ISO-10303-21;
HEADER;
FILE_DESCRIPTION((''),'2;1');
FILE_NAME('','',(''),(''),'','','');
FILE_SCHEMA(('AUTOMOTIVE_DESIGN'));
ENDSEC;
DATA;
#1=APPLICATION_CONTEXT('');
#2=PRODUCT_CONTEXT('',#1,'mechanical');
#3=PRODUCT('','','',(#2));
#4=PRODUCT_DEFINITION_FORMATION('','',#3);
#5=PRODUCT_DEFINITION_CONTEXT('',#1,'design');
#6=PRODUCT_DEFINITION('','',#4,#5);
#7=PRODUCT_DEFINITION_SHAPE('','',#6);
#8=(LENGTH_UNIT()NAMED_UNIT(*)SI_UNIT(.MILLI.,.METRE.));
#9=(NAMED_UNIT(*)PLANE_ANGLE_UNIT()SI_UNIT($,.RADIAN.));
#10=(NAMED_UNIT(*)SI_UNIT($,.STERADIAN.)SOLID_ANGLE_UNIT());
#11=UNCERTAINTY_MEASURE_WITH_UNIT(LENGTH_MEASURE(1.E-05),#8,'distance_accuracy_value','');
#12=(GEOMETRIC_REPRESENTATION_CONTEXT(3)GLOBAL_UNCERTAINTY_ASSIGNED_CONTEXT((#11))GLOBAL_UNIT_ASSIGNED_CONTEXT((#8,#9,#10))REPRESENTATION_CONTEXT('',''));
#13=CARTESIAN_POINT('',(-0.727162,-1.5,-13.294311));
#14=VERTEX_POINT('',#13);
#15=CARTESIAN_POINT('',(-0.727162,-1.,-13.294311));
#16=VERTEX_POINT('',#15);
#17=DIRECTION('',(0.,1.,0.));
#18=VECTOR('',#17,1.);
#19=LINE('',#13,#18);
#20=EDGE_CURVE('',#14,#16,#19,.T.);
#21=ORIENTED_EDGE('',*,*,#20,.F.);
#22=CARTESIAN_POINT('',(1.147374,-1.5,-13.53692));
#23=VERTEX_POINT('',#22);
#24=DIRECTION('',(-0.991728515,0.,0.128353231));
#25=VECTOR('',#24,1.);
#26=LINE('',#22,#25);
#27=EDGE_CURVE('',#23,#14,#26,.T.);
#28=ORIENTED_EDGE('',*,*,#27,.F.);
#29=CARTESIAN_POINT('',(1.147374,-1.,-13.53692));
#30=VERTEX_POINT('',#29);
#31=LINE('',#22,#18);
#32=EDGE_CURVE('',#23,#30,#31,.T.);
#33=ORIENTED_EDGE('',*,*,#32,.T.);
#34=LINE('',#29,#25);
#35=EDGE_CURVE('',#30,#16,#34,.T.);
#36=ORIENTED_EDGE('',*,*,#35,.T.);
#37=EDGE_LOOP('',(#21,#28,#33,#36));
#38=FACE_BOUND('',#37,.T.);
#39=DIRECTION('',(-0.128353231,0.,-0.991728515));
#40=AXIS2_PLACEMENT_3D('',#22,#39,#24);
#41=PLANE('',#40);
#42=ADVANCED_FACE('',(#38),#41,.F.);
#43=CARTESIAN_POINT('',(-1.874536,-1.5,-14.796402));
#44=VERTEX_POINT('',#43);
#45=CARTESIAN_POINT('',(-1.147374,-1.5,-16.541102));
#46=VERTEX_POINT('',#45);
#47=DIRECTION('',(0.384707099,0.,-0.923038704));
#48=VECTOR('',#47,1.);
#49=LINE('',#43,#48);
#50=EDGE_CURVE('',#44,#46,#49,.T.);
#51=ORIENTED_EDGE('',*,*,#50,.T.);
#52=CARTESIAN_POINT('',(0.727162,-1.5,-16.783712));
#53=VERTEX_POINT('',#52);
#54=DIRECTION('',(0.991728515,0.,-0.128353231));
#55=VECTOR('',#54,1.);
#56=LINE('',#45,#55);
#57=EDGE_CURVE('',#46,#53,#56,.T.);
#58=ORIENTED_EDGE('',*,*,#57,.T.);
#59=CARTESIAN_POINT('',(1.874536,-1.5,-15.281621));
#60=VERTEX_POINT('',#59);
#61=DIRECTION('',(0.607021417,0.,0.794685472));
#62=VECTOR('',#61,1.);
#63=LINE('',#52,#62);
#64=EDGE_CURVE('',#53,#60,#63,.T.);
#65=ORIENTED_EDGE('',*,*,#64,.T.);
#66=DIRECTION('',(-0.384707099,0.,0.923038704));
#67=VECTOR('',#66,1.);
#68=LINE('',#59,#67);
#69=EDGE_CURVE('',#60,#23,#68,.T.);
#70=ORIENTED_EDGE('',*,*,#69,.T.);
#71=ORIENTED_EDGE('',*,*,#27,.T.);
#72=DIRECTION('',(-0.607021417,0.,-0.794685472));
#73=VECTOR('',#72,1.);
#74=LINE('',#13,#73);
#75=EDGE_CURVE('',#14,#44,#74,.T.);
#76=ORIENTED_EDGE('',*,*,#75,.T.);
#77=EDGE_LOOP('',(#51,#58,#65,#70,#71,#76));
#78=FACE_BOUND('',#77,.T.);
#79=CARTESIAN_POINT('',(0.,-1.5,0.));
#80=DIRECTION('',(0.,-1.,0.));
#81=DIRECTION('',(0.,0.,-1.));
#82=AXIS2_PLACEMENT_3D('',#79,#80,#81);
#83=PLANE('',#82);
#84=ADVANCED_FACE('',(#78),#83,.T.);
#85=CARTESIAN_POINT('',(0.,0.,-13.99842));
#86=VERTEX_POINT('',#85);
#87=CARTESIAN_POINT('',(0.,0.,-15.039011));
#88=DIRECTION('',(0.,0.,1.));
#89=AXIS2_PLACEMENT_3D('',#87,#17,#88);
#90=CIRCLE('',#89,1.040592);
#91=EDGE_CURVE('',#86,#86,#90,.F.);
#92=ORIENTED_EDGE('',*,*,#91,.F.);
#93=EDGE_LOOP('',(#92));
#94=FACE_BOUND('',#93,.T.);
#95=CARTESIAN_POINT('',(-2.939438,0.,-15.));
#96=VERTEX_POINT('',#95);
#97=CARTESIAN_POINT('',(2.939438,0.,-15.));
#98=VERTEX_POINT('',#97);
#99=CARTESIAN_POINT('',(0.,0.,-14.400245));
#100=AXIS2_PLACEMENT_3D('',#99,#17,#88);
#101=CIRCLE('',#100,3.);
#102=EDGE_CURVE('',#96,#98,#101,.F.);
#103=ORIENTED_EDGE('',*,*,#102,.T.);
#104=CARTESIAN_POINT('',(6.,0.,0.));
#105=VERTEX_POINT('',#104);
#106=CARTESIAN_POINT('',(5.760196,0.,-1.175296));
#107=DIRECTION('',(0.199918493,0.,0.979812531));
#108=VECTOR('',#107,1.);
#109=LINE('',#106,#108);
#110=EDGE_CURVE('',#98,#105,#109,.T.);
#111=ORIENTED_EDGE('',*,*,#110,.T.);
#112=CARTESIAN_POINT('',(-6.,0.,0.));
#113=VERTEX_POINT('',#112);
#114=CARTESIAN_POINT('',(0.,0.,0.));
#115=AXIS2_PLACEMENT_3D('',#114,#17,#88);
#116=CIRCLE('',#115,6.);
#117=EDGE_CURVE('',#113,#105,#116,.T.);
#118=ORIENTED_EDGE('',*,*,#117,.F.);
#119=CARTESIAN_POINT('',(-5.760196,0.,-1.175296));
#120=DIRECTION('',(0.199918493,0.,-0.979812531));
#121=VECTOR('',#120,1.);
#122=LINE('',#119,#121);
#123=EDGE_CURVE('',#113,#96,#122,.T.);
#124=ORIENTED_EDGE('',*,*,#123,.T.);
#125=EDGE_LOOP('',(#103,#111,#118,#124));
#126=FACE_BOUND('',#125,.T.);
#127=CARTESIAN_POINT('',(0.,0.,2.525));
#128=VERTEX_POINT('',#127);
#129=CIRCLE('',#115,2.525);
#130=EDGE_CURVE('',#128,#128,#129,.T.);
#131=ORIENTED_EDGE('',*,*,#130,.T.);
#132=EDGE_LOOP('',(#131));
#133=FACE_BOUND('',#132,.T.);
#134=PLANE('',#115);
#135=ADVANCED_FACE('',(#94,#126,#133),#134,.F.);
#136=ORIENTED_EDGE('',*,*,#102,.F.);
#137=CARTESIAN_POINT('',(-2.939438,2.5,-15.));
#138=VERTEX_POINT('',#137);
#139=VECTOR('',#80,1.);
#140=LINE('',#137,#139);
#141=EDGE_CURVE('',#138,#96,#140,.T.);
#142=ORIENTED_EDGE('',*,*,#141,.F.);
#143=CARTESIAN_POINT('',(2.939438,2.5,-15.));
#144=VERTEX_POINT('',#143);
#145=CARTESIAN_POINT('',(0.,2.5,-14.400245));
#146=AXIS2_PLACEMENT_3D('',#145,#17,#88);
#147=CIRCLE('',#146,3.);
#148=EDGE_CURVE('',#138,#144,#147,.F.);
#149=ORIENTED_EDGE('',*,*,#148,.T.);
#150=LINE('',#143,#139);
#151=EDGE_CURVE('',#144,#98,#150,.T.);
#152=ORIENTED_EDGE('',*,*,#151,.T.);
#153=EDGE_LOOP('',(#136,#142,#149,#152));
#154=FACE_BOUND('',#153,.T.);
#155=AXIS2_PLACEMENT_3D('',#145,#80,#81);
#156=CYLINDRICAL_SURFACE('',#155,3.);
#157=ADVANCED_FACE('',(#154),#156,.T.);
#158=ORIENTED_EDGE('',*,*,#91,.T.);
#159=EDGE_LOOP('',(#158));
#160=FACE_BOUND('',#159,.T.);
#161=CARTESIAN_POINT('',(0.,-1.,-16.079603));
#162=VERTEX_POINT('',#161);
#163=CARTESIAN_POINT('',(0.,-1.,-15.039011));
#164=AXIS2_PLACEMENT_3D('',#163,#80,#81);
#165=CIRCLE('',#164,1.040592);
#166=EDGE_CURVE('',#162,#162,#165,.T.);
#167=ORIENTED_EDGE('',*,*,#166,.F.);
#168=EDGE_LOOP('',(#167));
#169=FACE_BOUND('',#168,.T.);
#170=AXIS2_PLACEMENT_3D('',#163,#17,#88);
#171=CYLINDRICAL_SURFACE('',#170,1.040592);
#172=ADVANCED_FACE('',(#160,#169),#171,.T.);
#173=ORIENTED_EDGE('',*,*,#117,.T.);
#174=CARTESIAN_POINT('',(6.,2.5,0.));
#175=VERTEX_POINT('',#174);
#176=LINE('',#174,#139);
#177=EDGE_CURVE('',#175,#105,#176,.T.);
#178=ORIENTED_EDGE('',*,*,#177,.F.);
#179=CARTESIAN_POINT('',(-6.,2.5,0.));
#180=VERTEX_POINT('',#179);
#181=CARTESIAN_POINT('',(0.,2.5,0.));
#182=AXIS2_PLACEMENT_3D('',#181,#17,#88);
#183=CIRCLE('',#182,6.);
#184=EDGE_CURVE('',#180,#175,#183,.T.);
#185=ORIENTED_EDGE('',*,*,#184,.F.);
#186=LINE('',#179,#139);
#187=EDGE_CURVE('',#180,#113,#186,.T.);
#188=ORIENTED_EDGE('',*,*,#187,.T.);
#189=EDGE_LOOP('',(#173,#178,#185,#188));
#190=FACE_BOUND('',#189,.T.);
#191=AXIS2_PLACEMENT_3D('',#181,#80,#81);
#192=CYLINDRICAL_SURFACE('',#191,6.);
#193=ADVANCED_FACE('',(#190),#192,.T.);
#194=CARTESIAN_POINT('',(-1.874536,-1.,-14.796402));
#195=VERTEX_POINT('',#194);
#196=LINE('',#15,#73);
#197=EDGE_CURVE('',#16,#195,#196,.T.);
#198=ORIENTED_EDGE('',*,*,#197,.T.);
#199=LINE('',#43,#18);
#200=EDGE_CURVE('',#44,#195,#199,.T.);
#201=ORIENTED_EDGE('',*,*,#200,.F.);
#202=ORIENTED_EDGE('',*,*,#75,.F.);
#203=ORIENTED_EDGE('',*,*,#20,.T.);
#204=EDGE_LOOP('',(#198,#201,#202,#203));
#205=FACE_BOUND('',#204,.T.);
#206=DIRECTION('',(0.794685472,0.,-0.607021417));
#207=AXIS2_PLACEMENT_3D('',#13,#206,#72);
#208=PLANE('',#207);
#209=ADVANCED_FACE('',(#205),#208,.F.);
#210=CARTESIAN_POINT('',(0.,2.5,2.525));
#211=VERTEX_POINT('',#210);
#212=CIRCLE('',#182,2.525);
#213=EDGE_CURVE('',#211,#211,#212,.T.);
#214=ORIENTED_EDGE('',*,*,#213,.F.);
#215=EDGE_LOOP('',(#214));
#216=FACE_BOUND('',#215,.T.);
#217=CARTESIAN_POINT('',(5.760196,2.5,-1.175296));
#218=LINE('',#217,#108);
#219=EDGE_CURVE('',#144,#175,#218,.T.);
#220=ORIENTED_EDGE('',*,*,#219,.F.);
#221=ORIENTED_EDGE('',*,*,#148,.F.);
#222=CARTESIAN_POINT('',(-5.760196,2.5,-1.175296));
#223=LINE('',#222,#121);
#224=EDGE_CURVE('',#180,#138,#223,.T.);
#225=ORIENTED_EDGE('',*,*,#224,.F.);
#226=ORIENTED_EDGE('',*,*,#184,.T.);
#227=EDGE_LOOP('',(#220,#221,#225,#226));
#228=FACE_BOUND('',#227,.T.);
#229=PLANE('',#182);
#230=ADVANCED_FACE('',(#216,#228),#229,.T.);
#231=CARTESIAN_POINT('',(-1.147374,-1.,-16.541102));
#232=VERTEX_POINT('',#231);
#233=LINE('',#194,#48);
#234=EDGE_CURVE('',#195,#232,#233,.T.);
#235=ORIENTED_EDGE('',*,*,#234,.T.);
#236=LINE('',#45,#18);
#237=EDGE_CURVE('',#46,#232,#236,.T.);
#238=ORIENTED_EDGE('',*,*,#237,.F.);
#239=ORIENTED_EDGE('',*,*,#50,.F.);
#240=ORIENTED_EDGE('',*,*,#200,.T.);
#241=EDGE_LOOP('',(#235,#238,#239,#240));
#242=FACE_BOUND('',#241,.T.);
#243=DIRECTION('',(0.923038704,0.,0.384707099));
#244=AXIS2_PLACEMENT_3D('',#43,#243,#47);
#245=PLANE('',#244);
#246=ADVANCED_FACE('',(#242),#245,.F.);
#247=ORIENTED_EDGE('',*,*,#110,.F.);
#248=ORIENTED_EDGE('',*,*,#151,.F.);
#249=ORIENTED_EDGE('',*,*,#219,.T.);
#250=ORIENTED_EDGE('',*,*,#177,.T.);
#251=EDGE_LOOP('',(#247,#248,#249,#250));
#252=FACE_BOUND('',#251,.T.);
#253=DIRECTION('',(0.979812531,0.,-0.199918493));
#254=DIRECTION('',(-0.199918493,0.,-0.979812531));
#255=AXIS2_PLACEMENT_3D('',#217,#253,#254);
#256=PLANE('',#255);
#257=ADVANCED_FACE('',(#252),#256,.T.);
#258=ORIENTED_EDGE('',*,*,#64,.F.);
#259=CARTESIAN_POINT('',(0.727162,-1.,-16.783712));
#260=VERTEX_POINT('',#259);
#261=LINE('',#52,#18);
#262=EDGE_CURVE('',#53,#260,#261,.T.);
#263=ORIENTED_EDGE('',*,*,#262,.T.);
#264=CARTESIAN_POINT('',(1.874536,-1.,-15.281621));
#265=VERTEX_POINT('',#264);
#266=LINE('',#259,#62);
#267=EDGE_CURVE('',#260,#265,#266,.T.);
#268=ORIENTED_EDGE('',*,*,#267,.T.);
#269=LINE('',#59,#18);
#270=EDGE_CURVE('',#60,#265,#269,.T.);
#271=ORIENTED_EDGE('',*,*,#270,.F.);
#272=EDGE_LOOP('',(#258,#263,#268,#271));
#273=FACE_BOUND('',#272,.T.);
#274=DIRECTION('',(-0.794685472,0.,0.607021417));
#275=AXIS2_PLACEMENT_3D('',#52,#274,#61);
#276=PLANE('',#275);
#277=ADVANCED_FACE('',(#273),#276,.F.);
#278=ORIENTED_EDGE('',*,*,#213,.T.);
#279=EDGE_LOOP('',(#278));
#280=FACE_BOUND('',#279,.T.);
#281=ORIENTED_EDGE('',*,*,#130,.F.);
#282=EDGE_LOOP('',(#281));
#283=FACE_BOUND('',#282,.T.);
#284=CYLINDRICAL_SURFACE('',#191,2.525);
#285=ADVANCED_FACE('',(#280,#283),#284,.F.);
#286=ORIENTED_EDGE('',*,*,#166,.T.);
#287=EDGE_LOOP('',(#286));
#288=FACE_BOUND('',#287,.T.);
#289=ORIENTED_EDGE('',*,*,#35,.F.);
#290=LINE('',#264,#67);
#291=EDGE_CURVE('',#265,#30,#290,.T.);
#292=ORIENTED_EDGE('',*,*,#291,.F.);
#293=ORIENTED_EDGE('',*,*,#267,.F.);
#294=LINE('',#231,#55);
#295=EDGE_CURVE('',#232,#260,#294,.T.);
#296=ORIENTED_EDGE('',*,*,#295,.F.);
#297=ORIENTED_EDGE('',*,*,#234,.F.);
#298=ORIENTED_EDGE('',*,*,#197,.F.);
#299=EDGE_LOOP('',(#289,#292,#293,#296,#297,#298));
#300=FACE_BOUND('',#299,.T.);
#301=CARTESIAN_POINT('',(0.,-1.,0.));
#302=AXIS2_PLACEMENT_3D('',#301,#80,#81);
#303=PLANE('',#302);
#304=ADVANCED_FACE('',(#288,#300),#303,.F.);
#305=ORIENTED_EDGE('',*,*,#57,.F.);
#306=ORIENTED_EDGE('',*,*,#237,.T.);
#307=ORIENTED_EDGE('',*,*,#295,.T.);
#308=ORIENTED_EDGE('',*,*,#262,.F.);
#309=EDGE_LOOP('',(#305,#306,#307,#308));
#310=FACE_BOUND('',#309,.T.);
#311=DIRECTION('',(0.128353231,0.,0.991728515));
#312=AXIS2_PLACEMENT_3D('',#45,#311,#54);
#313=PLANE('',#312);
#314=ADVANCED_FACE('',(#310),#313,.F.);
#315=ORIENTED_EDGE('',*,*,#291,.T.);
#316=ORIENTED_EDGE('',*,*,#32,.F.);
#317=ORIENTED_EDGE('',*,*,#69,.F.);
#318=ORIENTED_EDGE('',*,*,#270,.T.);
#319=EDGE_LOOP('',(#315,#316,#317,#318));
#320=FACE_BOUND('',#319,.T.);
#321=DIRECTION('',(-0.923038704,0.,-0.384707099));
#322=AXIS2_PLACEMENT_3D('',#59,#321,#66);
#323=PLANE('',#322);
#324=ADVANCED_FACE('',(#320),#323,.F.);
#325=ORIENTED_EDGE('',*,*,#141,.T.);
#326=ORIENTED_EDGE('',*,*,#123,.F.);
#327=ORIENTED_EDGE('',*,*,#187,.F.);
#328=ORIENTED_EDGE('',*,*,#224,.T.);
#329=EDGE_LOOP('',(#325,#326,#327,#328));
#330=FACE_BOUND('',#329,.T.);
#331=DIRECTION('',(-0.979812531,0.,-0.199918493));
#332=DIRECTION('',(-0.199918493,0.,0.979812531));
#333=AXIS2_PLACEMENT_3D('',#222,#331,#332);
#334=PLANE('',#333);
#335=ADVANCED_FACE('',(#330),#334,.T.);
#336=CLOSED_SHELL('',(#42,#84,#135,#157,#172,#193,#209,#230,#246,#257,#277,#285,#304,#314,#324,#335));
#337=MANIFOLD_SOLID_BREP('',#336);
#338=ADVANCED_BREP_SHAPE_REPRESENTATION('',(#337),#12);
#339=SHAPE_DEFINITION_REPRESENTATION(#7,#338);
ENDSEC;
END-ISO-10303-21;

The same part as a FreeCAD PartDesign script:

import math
import FreeCAD as App
import Part
import Sketcher
from FreeCAD import Vector

doc = App.newDocument("Part")
body = doc.addObject("PartDesign::Body", "Body")

# Sketch on XZ plane
sketch1 = body.newObject("Sketcher::SketchObject", "Sketch")
sketch1.AttachmentSupport = (doc.getObject("XZ_Plane"), [""])
sketch1.MapMode = "FlatFace"
sketch1.addGeometry([
    Part.LineSegment(Vector(-5.5, -2.4, 0), Vector(-6, 0, 0)),  # 0
    Part.ArcOfCircle(Part.Circle(Vector(0, 0, 0), Vector(0, 0, 1), 6), math.radians(0), math.radians(180)),  # 1
    Part.LineSegment(Vector(6, 0, 0), Vector(5.5, -2.4, 0)),  # 2
    Part.LineSegment(Vector(5.5, -2.4, 0), Vector(2.9, -15, 0)),  # 3
    Part.ArcOfCircle(Part.Circle(Vector(0, -14.4, 0), Vector(0, 0, 1), 3), math.radians(-168), math.radians(-12)),  # 4
    Part.LineSegment(Vector(-2.9, -15, 0), Vector(-5.5, -2.4, 0)),  # 5
    Part.Circle(Vector(0, 0, 0), Vector(0, 0, 1), 2.5),  # 6
], False)
sketch1.addConstraint([
    Sketcher.Constraint("Coincident", 0, 2, 1, 2),
    Sketcher.Constraint("Coincident", 1, 1, 2, 1),
    Sketcher.Constraint("Coincident", 2, 2, 3, 1),
    Sketcher.Constraint("Tangent", 3, 2, 4, 2),
    Sketcher.Constraint("Tangent", 4, 1, 5, 1),
    Sketcher.Constraint("Coincident", 5, 2, 0, 1),
    Sketcher.Constraint("Coincident", 1, 3, -1, 1),
    Sketcher.Constraint("Coincident", 6, 3, -1, 1),
    Sketcher.Constraint("Symmetric", 3, 2, 4, 1, -2),
    Sketcher.Constraint("PointOnObject", 0, 2, -1),
    Sketcher.Constraint("PointOnObject", 1, 1, -1),
    Sketcher.Constraint("Parallel", 2, 3),
    Sketcher.Constraint("Horizontal", 2, 2, 5, 2),
    Sketcher.Constraint("Radius", 1, 6.0),
    Sketcher.Constraint("Radius", 4, 3.0),
    Sketcher.Constraint("Diameter", 6, 5.05),
    Sketcher.Constraint("DistanceY", 3, 2, -1, 1, 15.0),
    Sketcher.Constraint("Distance", 0, 2.399022),
])
pad1 = body.newObject("PartDesign::Pad", "Pad")
pad1.Profile = sketch1
pad1.Length = 2.5
pad1.Reversed = True

# Sketch on XZ plane
sketch2 = body.newObject("Sketcher::SketchObject", "Sketch001")
sketch2.AttachmentSupport = (doc.getObject("XZ_Plane"), [""])
sketch2.MapMode = "FlatFace"
sketch2.addGeometry(Part.Circle(Vector(0, -15, 0), Vector(0, 0, 1), 1), False)
sketch2.addConstraint([
    Sketcher.Constraint("PointOnObject", 0, 3, -2),
    Sketcher.Constraint("Diameter", 0, 2.081184),
    Sketcher.Constraint("DistanceY", 0, 3, -1, 1, 15.039011),
])
pad2 = body.newObject("PartDesign::Pad", "Pad001")
pad2.Profile = sketch2
pad2.Length = 1

# Sketch on XZ plane
sketch3 = body.newObject("Sketcher::SketchObject", "Sketch002")
sketch3.AttachmentSupport = (doc.getObject("XZ_Plane"), [""])
sketch3.MapMode = "FlatFace"
sketch3.AttachmentOffset = App.Placement(Vector(0, 0, 1), App.Rotation())
sketch3.addGeometry([
    Part.LineSegment(Vector(1.1, -13.5, 0), Vector(-0.7, -13.3, 0)),  # 0
    Part.LineSegment(Vector(-0.7, -13.3, 0), Vector(-1.9, -14.8, 0)),  # 1
    Part.LineSegment(Vector(-1.9, -14.8, 0), Vector(-1.1, -16.5, 0)),  # 2
    Part.LineSegment(Vector(-1.1, -16.5, 0), Vector(0.7, -16.8, 0)),  # 3
    Part.LineSegment(Vector(0.7, -16.8, 0), Vector(1.9, -15.3, 0)),  # 4
    Part.LineSegment(Vector(1.9, -15.3, 0), Vector(1.1, -13.5, 0)),  # 5
], False)
sketch3.addConstraint([
    Sketcher.Constraint("Coincident", 0, 2, 1, 1),
    Sketcher.Constraint("Coincident", 1, 2, 2, 1),
    Sketcher.Constraint("Coincident", 2, 2, 3, 1),
    Sketcher.Constraint("Coincident", 3, 2, 4, 1),
    Sketcher.Constraint("Coincident", 4, 2, 5, 1),
    Sketcher.Constraint("Coincident", 5, 2, 0, 1),
    Sketcher.Constraint("Parallel", 0, 3),
    Sketcher.Constraint("Parallel", 1, 4),
    Sketcher.Constraint("Parallel", 2, 5),
    Sketcher.Constraint("Equal", 0, 1),
    Sketcher.Constraint("Equal", 1, 2),
    Sketcher.Constraint("Equal", 2, 3),
    Sketcher.Constraint("DistanceY", 1, 2, -1, 1, 14.796402),
    Sketcher.Constraint("DistanceY", 2, 2, 1, 2, 1.744701),
    Sketcher.Constraint("DistanceY", 3, 2, 0, 2, 3.489401),
    Sketcher.Constraint("Distance", 0, 1.89017),
    Sketcher.Constraint("DistanceY", 0, 2, -1, 1, 13.294311),
    Sketcher.Constraint("DistanceX", 0, 2, -1, 1, 0.727162),
])
pad3 = body.newObject("PartDesign::Pad", "Pad002")
pad3.Profile = sketch3
pad3.Length = 0.5

doc.recompute()
